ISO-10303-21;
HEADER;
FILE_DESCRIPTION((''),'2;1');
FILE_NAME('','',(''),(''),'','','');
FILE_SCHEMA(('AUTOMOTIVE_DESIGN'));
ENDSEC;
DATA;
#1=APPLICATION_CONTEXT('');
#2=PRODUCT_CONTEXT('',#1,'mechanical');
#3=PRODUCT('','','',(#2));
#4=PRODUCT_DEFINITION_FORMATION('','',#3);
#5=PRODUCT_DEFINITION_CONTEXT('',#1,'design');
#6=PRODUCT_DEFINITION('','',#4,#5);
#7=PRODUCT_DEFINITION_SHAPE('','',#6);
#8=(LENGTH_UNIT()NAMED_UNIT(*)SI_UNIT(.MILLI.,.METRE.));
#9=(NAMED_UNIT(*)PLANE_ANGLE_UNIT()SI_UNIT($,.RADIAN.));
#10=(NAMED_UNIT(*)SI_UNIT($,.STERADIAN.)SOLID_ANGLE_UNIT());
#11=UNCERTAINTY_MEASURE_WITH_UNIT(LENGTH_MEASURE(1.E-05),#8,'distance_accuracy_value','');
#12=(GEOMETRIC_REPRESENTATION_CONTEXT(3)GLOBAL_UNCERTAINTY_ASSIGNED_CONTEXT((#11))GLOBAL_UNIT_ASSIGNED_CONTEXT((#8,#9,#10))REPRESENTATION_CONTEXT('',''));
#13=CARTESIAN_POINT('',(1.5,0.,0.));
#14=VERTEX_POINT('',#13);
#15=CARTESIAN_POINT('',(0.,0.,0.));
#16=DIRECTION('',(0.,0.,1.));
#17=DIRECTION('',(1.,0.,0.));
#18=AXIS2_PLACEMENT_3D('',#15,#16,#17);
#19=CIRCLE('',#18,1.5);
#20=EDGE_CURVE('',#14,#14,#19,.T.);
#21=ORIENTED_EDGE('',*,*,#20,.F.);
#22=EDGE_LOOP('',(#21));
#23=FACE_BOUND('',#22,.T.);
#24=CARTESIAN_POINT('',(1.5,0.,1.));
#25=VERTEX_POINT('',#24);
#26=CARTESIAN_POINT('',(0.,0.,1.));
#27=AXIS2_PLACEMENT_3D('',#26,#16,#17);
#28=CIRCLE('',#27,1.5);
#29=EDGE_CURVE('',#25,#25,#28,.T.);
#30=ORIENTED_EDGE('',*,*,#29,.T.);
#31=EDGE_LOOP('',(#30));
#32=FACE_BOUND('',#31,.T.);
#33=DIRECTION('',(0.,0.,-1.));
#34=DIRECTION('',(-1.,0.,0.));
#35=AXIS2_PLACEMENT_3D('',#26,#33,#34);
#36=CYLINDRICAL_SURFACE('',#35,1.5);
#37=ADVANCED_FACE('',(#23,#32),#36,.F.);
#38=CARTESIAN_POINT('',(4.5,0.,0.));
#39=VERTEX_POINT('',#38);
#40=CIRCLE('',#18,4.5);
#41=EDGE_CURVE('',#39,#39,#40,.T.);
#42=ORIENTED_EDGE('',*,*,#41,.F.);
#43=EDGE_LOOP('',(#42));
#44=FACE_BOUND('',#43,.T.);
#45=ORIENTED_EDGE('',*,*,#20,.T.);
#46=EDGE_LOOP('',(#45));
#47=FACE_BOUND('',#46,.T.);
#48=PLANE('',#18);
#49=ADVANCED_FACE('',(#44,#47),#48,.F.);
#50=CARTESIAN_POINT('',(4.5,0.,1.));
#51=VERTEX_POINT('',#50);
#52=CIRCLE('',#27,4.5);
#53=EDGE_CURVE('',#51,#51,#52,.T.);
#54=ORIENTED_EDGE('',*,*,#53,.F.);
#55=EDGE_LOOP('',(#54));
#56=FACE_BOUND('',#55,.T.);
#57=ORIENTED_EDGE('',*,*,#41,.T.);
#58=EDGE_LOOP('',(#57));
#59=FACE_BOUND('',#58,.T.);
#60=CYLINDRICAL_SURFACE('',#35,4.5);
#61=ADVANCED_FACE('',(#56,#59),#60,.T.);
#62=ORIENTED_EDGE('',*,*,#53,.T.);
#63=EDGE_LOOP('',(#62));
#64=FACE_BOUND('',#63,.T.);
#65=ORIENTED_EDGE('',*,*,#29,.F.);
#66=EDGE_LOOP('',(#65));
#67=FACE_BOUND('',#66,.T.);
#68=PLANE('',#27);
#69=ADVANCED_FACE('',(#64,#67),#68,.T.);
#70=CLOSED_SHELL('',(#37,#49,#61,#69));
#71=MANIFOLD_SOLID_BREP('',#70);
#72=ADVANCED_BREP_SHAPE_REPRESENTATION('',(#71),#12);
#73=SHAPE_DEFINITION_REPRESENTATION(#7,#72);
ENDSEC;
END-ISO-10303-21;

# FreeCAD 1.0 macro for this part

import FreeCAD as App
import Part
import Sketcher
from FreeCAD import Vector

doc = App.newDocument("Part")
body = doc.addObject("PartDesign::Body", "Body")

# Sketch on XY plane
sketch1 = doc.addObject("Sketcher::SketchObject", "Sketch")
body.addObject(sketch1)
sketch1.AttachmentSupport = (doc.XY_Plane, [""])
sketch1.MapMode = "FlatFace"
sketch1.addGeometry([
    Part.Circle(Vector(0, 0, 0), Vector(0, 0, 1), 4.5),
    Part.Circle(Vector(0, 0, 0), Vector(0, 0, 1), 1.5),
], False)
sketch1.addConstraint([
    Sketcher.Constraint("Coincident", 0, 3, -1, 1),
    Sketcher.Constraint("Coincident", 1, 3, -1, 1),
    Sketcher.Constraint("Diameter", 0, 9.0),
    Sketcher.Constraint("Diameter", 1, 3.0),
])
pad1 = doc.addObject("PartDesign::Pad", "Pad")
body.addObject(pad1)
pad1.Profile = sketch1
pad1.Length = 1

doc.recompute()
